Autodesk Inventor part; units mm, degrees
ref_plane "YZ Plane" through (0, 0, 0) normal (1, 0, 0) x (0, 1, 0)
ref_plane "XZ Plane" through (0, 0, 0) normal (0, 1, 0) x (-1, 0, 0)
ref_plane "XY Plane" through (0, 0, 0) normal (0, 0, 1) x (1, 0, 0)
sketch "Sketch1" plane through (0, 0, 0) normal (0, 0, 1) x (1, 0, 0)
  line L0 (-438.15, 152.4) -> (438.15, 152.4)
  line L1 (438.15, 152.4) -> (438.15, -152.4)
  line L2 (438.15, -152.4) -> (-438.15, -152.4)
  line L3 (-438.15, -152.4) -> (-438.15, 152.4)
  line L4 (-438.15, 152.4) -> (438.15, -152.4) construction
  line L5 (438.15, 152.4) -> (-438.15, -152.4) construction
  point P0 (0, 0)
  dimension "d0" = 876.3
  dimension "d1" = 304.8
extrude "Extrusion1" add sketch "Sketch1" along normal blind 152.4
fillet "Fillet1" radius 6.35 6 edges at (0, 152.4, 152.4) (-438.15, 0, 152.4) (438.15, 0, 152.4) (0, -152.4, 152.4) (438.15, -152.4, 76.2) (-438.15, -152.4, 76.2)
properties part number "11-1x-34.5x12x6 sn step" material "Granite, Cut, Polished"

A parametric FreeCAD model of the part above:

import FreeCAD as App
import Part
import Sketcher
from FreeCAD import Vector
Q = App.Units.Quantity


def edges_at(feature, points):
    """Names of the edges that pass closest to the given points."""
    edges = feature.Shape.Edges
    near = lambda p: min(range(len(edges)), key=lambda i: edges[i].distToShape(Part.Vertex(*p))[0])
    return sorted({f"Edge{near(p) + 1}" for p in points})


def add_polygon(sketch, points):
    """Adds a closed chain of lines whose ends are joined by coincident constraints."""
    first, n = sketch.GeometryCount, len(points)
    for a, b in zip(points, points[1:] + points[:1]):
        sketch.addGeometry(Part.LineSegment(App.Vector(*a, 0), App.Vector(*b, 0)), False)
    for i in range(n):
        sketch.addConstraint(Sketcher.Constraint("Coincident", first + i, 2, first + (i + 1) % n, 1))

doc = App.newDocument("Part")
body = doc.addObject("PartDesign::Body", "Body")

# Sketch on XY plane
sketch1 = body.newObject("Sketcher::SketchObject", "Sketch")
sketch1.AttachmentSupport = (doc.getObject("XY_Plane"), [""])
sketch1.MapMode = "FlatFace"
add_polygon(sketch1, [(438, 152), (-438, 152), (-438, -152), (438, -152)])  # lines 0-3
sketch1.addConstraint([
    Sketcher.Constraint("Horizontal", 0),
    Sketcher.Constraint("Vertical", 1),
    Sketcher.Constraint("Horizontal", 2),
    Sketcher.Constraint("Vertical", 3),
    Sketcher.Constraint("Symmetric", 0, 2, 2, 2, -1, 1),
    Sketcher.Constraint("DistanceY", 1, 2, 1, 1, Q("12 in")),
    Sketcher.Constraint("DistanceX", 0, 2, 0, 1, Q("34.5 in")),
])
pad1 = body.newObject("PartDesign::Pad", "Pad")
pad1.Profile = sketch1
pad1.Length = Q("6 in")
doc.recompute()

fillet = body.newObject("PartDesign::Fillet", "Fillet")
fillet.Base = (pad1, edges_at(pad1, [
    (0, 152.4, 152.4),
    (-438.15, 0, 152.4),
    (438.15, 0, 152.4),
    (0, -152.4, 152.4),
    (438.15, -152.4, 76.2),
    (-438.15, -152.4, 76.2),
]))
fillet.Radius = Q("0.25 in")

doc.recompute()
